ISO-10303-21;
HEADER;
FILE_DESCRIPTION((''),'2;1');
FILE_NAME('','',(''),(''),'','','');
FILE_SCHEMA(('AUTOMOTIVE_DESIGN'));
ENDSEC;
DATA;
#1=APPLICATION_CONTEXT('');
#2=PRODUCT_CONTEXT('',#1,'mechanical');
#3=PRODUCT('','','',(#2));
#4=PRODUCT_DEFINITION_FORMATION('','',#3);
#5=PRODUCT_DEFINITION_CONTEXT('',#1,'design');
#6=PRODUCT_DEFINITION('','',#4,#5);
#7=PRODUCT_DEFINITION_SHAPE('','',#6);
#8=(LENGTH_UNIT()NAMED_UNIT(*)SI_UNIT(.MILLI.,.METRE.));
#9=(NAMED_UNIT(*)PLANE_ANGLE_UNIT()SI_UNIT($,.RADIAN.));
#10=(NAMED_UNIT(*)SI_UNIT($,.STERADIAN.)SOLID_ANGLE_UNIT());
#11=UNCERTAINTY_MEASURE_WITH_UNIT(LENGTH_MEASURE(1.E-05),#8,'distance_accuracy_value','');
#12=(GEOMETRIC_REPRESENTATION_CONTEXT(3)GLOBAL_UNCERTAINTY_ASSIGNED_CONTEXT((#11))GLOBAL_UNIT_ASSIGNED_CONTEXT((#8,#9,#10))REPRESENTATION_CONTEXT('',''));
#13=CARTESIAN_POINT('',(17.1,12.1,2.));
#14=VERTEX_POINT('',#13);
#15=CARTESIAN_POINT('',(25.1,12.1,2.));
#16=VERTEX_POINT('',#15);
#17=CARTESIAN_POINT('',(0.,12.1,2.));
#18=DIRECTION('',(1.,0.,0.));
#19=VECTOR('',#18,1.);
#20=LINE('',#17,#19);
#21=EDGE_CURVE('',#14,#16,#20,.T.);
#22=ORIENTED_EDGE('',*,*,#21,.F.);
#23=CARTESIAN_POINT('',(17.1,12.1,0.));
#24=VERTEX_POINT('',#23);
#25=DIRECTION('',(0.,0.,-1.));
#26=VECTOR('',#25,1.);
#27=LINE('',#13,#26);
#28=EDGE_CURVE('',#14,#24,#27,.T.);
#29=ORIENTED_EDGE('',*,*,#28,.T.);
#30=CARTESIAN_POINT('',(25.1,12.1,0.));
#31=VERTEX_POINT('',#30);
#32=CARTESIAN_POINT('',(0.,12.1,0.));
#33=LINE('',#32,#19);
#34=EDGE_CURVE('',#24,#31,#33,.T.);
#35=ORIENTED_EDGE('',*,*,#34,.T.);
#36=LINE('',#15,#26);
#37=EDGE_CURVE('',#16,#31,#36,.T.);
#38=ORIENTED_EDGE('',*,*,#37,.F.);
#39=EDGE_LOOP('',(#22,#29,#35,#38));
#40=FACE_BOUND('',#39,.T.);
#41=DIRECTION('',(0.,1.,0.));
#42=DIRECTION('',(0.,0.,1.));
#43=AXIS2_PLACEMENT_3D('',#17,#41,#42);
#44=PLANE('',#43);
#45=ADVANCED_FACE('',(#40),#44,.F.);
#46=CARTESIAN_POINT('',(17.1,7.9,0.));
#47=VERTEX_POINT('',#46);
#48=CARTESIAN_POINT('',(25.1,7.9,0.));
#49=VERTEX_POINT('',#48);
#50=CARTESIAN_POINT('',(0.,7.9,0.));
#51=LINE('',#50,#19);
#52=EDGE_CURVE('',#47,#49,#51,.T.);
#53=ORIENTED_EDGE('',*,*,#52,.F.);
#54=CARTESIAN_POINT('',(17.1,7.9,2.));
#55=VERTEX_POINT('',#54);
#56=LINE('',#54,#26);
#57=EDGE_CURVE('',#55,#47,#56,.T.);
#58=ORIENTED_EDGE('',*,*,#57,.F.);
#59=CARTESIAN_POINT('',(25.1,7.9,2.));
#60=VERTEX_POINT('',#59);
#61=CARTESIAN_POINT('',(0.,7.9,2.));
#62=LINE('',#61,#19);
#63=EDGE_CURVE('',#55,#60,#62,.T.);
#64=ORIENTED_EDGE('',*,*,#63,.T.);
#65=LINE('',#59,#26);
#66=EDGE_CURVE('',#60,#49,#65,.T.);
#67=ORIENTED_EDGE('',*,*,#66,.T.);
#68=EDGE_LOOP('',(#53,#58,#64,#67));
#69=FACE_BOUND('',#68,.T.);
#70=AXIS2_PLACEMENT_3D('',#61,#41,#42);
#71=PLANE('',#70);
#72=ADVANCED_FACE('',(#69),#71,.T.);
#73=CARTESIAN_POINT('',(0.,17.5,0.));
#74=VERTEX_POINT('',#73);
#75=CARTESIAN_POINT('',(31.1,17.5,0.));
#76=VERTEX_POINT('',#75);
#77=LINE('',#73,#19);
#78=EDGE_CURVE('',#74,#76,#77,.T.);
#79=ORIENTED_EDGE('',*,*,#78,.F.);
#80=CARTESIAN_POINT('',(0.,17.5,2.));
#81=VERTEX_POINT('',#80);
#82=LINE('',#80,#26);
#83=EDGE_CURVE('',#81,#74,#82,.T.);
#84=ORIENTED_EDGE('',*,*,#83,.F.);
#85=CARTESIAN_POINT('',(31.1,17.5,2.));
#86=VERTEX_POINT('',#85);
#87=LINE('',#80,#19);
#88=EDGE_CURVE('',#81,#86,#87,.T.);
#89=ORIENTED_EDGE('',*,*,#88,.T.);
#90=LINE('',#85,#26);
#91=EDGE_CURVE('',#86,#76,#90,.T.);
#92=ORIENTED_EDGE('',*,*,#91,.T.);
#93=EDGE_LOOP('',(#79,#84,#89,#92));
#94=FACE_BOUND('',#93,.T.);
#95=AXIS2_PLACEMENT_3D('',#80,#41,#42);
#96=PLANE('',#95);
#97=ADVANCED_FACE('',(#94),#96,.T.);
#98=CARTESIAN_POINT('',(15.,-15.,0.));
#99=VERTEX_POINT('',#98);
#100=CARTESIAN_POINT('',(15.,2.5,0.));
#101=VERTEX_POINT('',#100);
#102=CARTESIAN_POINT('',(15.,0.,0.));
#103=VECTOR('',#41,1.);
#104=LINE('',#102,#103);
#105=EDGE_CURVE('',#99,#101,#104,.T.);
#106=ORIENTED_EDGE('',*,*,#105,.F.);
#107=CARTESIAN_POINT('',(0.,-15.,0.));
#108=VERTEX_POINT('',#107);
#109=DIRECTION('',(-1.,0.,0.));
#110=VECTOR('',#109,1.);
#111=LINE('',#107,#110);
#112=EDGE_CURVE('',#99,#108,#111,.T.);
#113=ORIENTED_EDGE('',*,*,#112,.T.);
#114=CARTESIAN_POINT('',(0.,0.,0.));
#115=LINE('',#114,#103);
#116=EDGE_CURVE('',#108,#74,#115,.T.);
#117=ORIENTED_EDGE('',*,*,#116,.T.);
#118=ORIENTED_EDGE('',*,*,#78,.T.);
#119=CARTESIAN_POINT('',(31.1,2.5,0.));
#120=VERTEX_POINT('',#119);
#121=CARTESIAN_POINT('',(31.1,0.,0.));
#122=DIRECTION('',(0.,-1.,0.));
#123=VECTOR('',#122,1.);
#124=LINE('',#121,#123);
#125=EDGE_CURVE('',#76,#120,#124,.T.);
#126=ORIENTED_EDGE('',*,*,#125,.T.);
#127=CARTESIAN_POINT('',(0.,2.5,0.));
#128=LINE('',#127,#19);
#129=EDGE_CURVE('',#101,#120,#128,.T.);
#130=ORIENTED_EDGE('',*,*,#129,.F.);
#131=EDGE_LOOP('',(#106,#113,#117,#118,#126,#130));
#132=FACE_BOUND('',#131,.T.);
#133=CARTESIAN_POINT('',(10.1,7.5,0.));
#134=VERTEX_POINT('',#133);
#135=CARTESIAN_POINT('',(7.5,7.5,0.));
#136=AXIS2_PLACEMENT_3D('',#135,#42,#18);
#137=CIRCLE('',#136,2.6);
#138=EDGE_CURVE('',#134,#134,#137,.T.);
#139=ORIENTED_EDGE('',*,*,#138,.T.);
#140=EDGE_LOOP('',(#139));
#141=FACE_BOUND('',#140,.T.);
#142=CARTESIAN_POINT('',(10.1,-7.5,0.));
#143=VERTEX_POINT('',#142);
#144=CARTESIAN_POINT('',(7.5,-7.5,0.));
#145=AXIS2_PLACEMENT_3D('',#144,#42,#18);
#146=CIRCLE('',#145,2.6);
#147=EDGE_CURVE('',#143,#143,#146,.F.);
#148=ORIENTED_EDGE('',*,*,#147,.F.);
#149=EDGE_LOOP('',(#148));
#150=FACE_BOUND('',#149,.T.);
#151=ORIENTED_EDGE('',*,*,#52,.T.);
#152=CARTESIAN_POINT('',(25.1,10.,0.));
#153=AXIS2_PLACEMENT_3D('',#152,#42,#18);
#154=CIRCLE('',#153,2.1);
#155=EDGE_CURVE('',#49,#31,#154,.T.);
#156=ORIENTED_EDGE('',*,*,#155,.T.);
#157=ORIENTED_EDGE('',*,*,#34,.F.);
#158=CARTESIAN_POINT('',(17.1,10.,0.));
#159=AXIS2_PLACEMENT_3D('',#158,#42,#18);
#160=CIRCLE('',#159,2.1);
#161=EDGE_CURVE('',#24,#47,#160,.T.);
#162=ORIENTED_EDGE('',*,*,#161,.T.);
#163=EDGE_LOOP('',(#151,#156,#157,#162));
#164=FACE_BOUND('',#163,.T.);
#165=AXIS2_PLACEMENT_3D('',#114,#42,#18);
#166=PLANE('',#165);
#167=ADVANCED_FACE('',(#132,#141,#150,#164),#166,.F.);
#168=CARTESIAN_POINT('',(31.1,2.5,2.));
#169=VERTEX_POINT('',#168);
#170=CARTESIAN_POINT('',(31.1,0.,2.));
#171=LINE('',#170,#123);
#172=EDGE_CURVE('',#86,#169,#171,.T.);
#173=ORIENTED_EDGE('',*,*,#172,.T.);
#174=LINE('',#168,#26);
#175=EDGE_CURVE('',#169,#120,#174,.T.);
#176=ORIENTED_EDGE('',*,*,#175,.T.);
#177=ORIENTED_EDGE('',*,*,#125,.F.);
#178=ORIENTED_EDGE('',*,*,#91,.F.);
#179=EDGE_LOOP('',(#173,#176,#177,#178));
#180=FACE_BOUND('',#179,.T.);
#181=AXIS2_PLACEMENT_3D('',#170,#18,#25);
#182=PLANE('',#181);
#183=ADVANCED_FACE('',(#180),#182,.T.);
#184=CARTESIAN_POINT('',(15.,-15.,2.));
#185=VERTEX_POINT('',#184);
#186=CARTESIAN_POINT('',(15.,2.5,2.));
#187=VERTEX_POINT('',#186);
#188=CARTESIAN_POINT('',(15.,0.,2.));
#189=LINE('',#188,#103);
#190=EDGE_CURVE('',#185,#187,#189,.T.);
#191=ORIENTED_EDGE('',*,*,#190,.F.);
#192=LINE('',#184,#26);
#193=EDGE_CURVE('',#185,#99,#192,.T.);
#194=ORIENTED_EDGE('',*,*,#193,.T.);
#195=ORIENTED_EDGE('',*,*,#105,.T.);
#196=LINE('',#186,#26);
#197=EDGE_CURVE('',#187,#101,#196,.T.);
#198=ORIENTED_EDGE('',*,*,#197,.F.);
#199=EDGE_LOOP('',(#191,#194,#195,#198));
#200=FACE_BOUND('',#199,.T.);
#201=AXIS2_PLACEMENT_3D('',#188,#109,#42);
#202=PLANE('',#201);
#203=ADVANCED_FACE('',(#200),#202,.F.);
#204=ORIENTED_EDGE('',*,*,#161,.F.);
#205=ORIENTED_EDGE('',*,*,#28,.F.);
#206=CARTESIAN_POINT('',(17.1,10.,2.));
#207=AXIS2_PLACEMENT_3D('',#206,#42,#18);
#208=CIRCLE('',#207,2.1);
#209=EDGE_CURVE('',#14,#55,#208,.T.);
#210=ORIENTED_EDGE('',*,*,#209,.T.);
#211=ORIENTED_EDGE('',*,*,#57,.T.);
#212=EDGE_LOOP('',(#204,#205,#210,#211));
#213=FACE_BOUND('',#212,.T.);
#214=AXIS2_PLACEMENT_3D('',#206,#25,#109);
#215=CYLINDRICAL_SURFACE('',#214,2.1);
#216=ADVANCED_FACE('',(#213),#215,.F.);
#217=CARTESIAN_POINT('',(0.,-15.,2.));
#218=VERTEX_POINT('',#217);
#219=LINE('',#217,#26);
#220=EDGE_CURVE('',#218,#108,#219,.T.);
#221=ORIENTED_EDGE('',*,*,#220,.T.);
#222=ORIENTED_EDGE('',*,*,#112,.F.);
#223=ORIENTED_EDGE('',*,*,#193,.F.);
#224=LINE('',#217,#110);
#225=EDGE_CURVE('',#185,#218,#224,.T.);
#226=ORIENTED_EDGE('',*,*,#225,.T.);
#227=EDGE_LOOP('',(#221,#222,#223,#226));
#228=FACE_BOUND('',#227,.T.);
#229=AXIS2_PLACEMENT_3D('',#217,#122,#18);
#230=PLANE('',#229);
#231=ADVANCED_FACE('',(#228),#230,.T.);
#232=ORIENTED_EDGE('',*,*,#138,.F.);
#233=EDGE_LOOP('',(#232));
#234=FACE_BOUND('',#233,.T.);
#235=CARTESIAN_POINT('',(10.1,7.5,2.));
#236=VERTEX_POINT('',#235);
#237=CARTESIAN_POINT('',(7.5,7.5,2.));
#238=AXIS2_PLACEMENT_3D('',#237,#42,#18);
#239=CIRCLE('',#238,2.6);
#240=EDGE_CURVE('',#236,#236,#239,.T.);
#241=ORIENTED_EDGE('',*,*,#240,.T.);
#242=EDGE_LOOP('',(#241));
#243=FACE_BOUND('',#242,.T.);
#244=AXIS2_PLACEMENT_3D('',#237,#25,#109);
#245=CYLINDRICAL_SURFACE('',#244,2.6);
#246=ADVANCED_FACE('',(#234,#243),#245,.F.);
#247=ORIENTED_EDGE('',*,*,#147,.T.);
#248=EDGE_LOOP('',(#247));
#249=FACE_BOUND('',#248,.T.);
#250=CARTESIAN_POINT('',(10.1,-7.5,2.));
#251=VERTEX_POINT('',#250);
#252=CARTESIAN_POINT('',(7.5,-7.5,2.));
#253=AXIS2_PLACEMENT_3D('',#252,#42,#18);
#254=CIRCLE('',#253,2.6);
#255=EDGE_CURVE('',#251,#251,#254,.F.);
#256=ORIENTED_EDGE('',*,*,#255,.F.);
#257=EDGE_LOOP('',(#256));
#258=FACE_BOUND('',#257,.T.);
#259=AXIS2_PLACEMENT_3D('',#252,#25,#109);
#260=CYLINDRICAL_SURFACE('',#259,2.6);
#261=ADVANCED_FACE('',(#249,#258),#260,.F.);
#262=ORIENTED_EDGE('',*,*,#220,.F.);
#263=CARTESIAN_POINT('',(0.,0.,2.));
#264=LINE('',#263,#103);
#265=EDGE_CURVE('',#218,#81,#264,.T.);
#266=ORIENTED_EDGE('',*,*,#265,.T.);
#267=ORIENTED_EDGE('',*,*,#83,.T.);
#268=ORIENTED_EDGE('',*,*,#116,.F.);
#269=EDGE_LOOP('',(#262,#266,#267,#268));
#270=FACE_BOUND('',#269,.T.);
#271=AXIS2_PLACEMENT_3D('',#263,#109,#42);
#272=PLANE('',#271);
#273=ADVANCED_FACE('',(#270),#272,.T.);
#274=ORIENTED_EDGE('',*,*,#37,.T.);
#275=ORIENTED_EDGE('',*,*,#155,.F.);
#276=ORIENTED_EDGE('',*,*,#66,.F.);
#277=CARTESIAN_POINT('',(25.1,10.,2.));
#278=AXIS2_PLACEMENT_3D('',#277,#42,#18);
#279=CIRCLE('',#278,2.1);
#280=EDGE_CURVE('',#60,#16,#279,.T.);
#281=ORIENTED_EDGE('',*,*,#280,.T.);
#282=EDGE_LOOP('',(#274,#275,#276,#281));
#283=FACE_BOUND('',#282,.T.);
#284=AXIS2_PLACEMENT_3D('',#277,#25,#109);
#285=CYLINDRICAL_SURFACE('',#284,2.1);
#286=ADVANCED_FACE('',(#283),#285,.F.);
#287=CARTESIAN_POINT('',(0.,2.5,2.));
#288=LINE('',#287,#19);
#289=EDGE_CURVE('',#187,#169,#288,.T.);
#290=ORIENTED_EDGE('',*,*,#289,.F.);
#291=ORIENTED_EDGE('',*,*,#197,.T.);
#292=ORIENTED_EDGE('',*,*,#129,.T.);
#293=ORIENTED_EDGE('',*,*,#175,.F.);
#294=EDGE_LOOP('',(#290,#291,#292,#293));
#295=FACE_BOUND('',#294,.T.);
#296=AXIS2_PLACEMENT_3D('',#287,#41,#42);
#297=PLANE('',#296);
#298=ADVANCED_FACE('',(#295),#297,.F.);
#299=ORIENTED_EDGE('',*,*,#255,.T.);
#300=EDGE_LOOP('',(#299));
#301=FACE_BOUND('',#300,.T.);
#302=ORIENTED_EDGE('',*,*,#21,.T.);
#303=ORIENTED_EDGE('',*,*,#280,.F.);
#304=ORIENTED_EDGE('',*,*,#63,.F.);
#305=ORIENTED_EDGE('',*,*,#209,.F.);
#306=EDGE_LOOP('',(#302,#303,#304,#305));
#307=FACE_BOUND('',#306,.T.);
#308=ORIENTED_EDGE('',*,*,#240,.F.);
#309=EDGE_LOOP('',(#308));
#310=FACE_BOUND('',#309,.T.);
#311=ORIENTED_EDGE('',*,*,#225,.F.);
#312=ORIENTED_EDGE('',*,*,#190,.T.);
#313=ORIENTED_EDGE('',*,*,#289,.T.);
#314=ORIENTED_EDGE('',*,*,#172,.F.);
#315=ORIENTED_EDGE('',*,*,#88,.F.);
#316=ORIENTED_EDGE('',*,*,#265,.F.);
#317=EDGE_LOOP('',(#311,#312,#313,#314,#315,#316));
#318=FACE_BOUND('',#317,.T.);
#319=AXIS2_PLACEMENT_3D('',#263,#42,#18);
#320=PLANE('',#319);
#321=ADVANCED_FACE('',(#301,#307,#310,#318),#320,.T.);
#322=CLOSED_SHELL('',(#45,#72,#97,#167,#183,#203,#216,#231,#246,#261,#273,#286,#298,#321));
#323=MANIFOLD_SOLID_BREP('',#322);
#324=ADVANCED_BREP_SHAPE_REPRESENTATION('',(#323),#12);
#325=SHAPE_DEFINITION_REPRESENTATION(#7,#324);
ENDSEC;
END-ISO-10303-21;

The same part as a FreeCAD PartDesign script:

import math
import FreeCAD as App
import Part
import Sketcher

V = App.Vector
Q = App.Units.Quantity

doc = App.newDocument("Part")
body = doc.addObject("PartDesign::Body", "Body")

sketch1 = body.newObject("Sketcher::SketchObject", "Sketch")
sketch1.AttachmentSupport = (doc.getObject("XY_Plane"), [""])
sketch1.MapMode = "FlatFace"
sketch1.addGeometry(Part.LineSegment(V(0, 17.5, 0), V(0, -15, 0)), False)
sketch1.addGeometry(Part.LineSegment(V(0, -15, 0), V(15, -15, 0)), False)
sketch1.addGeometry(Part.LineSegment(V(15, -15, 0), V(15, 2.5, 0)), False)
sketch1.addGeometry(Part.LineSegment(V(15, 2.5, 0), V(31.1, 2.5, 0)), False)
sketch1.addGeometry(Part.LineSegment(V(31.1, 2.5, 0), V(31.1, 17.5, 0)), False)
sketch1.addGeometry(Part.LineSegment(V(31.1, 17.5, 0), V(0, 17.5, 0)), False)
sketch1.addGeometry(Part.Circle(V(7.5, 7.5, 0), V(0, 0, 1), 2.6), False)
sketch1.addGeometry(Part.LineSegment(V(25.1, 7.9, 0), V(17.1, 7.9, 0)), False)
sketch1.addGeometry(Part.ArcOfCircle(Part.Circle(V(17.1, 10, 0), V(0, 0, 1), 2.1), math.radians(90), math.radians(270)), False)
sketch1.addGeometry(Part.LineSegment(V(17.1, 12.1, 0), V(25.1, 12.1, 0)), False)
sketch1.addGeometry(Part.ArcOfCircle(Part.Circle(V(25.1, 10, 0), V(0, 0, 1), 2.1), math.radians(-90), math.radians(90)), False)
sketch1.addGeometry(Part.Circle(V(7.5, -7.5, 0), V(0, 0, 1), 2.6), False)
sketch1.addConstraint(Sketcher.Constraint("Coincident", 0, 2, 1, 1))
sketch1.addConstraint(Sketcher.Constraint("Coincident", 1, 2, 2, 1))
sketch1.addConstraint(Sketcher.Constraint("Coincident", 2, 2, 3, 1))
sketch1.addConstraint(Sketcher.Constraint("Coincident", 3, 2, 4, 1))
sketch1.addConstraint(Sketcher.Constraint("Coincident", 4, 2, 5, 1))
sketch1.addConstraint(Sketcher.Constraint("Coincident", 5, 2, 0, 1))
sketch1.addConstraint(Sketcher.Constraint("Tangent", 7, 2, 8, 2))
sketch1.addConstraint(Sketcher.Constraint("Tangent", 8, 1, 9, 1))
sketch1.addConstraint(Sketcher.Constraint("Tangent", 9, 2, 10, 2))
sketch1.addConstraint(Sketcher.Constraint("Tangent", 10, 1, 7, 1))
sketch1.addConstraint(Sketcher.Constraint("Vertical", 0))
sketch1.addConstraint(Sketcher.Constraint("Horizontal", 1))
sketch1.addConstraint(Sketcher.Constraint("Vertical", 2))
sketch1.addConstraint(Sketcher.Constraint("Horizontal", 3))
sketch1.addConstraint(Sketcher.Constraint("Vertical", 4))
sketch1.addConstraint(Sketcher.Constraint("Horizontal", 5))
sketch1.addConstraint(Sketcher.Constraint("Horizontal", 7))
sketch1.addConstraint(Sketcher.Constraint("Horizontal", 9))
sketch1.addConstraint(Sketcher.Constraint("Equal", 6, 11))
sketch1.addConstraint(Sketcher.Constraint("Symmetric", 6, 3, 11, 3, -1))
sketch1.addConstraint(Sketcher.Constraint("PointOnObject", 0, 2, -2))
sketch1.addConstraint(Sketcher.Constraint("Equal", 1, 4))
sketch1.addConstraint(Sketcher.Constraint("Diameter", 6, Q("5.2 mm")))
sketch1.addConstraint(Sketcher.Constraint("Radius", 8, Q("2.1 mm")))
sketch1.addConstraint(Sketcher.Constraint("DistanceX", 1, 1, 1, 2, Q("15 mm")))
sketch1.addConstraint(Sketcher.Constraint("DistanceX", 7, 2, 7, 1, Q("8 mm")))
sketch1.addConstraint(Sketcher.Constraint("DistanceX", 3, 1, 3, 2, Q("16.1 mm")))
sketch1.addConstraint(Sketcher.Constraint("DistanceY", 0, 2, 0, 1, Q("32.5 mm")))
sketch1.addConstraint(Sketcher.Constraint("DistanceY", -1, 1, 8, 3, Q("10 mm")))
sketch1.addConstraint(Sketcher.Constraint("DistanceY", 0, 2, -1, 1, Q("15 mm")))
sketch1.addConstraint(Sketcher.Constraint("DistanceY", 11, 3, 6, 3, Q("15 mm")))
sketch1.addConstraint(Sketcher.Constraint("DistanceX", 10, 3, 3, 2, Q("6 mm")))
sketch1.addConstraint(Sketcher.Constraint("DistanceX", -1, 1, 6, 3, Q("7.5 mm")))
pad1 = body.newObject("PartDesign::Pad", "Pad")
pad1.Profile = sketch1
pad1.Length = 2

doc.recompute()
